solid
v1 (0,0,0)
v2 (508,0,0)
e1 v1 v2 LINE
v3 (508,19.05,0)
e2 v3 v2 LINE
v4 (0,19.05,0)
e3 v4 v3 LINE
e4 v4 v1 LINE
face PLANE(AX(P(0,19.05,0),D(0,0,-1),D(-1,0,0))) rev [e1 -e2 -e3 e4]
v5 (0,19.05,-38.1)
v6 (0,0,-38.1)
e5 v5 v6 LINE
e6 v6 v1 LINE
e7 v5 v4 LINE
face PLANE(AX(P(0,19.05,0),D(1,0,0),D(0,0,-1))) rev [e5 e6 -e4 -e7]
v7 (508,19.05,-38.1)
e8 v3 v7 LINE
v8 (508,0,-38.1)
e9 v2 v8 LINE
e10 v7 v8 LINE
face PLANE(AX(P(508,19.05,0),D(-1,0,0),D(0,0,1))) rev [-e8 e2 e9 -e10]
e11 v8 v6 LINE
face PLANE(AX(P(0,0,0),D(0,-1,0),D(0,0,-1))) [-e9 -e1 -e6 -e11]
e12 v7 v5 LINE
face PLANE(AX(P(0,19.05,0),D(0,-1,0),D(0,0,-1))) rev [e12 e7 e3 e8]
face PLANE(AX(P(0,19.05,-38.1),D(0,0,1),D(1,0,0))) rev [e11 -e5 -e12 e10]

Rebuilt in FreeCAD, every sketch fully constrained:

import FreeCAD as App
import Part
import Sketcher

V = App.Vector
Q = App.Units.Quantity


def add_polygon(sketch, points):
    """Adds a closed chain of lines whose ends are joined by coincident constraints."""
    first, n = sketch.GeometryCount, len(points)
    for a, b in zip(points, points[1:] + points[:1]):
        sketch.addGeometry(Part.LineSegment(App.Vector(*a, 0), App.Vector(*b, 0)), False)
    for i in range(n):
        sketch.addConstraint(Sketcher.Constraint("Coincident", first + i, 2, first + (i + 1) % n, 1))

doc = App.newDocument("Part")
body = doc.addObject("PartDesign::Body", "Body")

# Sketch on XZ plane
sketch1 = body.newObject("Sketcher::SketchObject", "Sketch")
sketch1.AttachmentSupport = (doc.getObject("XZ_Plane"), [""])
sketch1.MapMode = "FlatFace"
add_polygon(sketch1, [(0, -38), (0, 0), (508, 0), (508, -38)])  # lines 0-3
sketch1.addConstraint([
    Sketcher.Constraint("Vertical", 0),
    Sketcher.Constraint("Horizontal", 1),
    Sketcher.Constraint("Vertical", 2),
    Sketcher.Constraint("Horizontal", 3),
    Sketcher.Constraint("Coincident", 0, 2, -1, 1),
    Sketcher.Constraint("DistanceX", 1, 1, 1, 2, Q("20 in")),
    Sketcher.Constraint("DistanceY", 0, 1, 0, 2, Q("1.5 in")),
])
pad1 = body.newObject("PartDesign::Pad", "Pad")
pad1.Profile = sketch1
pad1.Length = Q("0.75 in")
pad1.Reversed = True

doc.recompute()
